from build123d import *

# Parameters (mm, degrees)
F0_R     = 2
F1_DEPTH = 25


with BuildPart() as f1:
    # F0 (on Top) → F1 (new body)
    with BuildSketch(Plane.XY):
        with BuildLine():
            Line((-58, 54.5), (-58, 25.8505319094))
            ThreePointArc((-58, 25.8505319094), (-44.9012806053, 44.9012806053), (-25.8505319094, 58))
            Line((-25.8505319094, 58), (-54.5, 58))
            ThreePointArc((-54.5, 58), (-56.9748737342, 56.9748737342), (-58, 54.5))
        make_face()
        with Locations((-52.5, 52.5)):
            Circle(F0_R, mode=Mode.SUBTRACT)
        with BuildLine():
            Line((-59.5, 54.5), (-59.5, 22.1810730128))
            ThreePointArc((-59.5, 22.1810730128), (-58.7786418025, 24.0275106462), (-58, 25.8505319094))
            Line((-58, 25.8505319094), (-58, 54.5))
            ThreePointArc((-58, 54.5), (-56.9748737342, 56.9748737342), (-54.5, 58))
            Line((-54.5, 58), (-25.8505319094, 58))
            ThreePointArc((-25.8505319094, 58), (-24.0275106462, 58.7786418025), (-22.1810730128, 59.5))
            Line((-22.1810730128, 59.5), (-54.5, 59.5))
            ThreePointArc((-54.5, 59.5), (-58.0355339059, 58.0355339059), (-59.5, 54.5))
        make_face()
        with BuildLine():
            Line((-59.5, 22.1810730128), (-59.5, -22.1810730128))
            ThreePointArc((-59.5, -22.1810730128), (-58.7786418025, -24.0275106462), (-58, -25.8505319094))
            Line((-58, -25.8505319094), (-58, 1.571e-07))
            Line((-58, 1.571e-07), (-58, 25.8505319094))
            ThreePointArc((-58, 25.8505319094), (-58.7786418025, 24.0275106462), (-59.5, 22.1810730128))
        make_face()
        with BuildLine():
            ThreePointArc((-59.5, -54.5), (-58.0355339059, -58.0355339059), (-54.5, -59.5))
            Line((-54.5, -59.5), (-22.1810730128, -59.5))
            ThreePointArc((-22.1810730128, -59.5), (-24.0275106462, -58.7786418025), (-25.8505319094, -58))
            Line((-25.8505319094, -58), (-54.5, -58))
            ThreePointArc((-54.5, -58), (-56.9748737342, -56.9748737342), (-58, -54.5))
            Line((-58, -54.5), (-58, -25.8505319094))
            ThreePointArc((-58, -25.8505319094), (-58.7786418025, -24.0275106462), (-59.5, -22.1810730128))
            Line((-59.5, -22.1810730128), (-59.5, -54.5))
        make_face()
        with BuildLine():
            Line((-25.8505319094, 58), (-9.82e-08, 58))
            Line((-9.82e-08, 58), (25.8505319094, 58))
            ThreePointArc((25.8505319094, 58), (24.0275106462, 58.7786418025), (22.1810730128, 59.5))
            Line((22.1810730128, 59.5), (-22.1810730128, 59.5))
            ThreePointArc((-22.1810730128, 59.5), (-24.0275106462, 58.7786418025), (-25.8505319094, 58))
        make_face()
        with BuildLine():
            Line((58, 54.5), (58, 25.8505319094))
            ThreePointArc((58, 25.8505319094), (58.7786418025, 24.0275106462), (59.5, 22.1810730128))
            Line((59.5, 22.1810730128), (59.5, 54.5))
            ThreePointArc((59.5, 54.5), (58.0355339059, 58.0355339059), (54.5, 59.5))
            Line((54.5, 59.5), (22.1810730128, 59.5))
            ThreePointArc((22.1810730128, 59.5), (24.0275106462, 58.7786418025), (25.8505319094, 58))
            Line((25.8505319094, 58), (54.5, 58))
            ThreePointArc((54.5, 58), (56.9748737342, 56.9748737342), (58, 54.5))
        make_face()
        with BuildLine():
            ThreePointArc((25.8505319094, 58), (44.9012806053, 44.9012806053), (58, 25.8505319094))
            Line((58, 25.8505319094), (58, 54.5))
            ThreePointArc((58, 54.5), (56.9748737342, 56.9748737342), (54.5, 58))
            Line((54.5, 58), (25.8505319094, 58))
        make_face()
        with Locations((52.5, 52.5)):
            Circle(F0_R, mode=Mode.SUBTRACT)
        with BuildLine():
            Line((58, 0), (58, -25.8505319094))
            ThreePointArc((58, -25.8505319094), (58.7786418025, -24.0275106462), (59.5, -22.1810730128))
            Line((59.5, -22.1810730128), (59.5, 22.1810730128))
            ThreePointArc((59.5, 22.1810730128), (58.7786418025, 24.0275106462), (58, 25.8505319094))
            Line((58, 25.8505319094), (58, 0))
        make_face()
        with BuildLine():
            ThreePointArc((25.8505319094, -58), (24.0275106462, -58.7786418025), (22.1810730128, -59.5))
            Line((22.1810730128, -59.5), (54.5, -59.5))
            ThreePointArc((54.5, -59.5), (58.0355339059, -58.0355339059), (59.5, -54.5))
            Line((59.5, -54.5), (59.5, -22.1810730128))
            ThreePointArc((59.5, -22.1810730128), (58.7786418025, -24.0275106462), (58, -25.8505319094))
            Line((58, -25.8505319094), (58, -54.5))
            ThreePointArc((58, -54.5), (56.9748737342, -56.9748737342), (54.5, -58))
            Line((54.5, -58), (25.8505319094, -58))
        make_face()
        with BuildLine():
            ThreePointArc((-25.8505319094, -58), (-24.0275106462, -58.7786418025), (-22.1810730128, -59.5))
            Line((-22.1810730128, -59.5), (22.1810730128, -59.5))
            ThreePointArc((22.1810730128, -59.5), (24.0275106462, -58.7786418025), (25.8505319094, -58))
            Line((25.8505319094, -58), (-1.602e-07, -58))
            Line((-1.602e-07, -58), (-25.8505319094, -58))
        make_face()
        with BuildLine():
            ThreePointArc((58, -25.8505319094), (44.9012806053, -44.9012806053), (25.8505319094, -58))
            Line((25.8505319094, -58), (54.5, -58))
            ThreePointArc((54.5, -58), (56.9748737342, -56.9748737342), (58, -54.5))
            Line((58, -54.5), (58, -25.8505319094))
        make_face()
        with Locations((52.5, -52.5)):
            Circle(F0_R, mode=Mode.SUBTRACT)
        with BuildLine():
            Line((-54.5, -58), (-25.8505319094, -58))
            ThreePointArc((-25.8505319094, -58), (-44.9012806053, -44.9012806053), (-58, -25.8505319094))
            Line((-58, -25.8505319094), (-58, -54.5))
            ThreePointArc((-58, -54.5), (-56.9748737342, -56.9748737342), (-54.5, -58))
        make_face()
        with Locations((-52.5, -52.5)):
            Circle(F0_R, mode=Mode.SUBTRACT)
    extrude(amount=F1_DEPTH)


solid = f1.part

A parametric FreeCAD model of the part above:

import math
import FreeCAD as App
import Part
import Sketcher

doc = App.newDocument("Part")
params = doc.addObject("Spreadsheet::Sheet", "Params")
for row, (alias, value) in enumerate([
    ("sketch1_diameter", "4 mm"),
    ("sketch1_radius", "5 mm"),
    ("sketch1_radius2", "63.5 mm"),
    ("sketch1_width", "109 mm"),
    ("pad1_length", "25 mm"),
], start=1):
    params.set(f"A{row}", alias)
    params.set(f"B{row}", "=" + value)
    params.setAlias(f"B{row}", alias)

body = doc.addObject("PartDesign::Body", "Body")

sketch1 = body.newObject("Sketcher::SketchObject", "Sketch")
sketch1.AttachmentSupport = (doc.getObject("XY_Plane"), [""])
sketch1.MapMode = "FlatFace"
sketch1.addGeometry(Part.ArcOfCircle(Part.Circle(App.Vector(54.5, -54.5, 0), App.Vector(0, 0, 1), 5), math.radians(-90), math.radians(0)), False)
sketch1.addGeometry(Part.LineSegment(App.Vector(59.5, -54.5, 0), App.Vector(59.5, 54.5, 0)), False)
sketch1.addGeometry(Part.ArcOfCircle(Part.Circle(App.Vector(54.5, 54.5, 0), App.Vector(0, 0, 1), 5), math.radians(0), math.radians(90)), False)
sketch1.addGeometry(Part.LineSegment(App.Vector(54.5, 59.5, 0), App.Vector(-54.5, 59.5, 0)), False)
sketch1.addGeometry(Part.ArcOfCircle(Part.Circle(App.Vector(-54.5, 54.5, 0), App.Vector(0, 0, 1), 5), math.radians(90), math.radians(180)), False)
sketch1.addGeometry(Part.LineSegment(App.Vector(-59.5, 54.5, 0), App.Vector(-59.5, -54.5, 0)), False)
sketch1.addGeometry(Part.ArcOfCircle(Part.Circle(App.Vector(-54.5, -54.5, 0), App.Vector(0, 0, 1), 5), math.radians(180), math.radians(270)), False)
sketch1.addGeometry(Part.LineSegment(App.Vector(-54.5, -59.5, 0), App.Vector(54.5, -59.5, 0)), False)
sketch1.addGeometry(Part.Circle(App.Vector(-52.5, -52.5, 0), App.Vector(0, 0, 1), 2), False)
sketch1.addGeometry(Part.ArcOfCircle(Part.Circle(App.Vector(0, 0, 0), App.Vector(0, 0, 1), 63.5), math.radians(114), math.radians(156)), False)
sketch1.addGeometry(Part.LineSegment(App.Vector(-25.9, 58, 0), App.Vector(25.9, 58, 0)), False)
sketch1.addGeometry(Part.ArcOfCircle(Part.Circle(App.Vector(0, 0, 0), App.Vector(0, 0, 1), 63.5), math.radians(24), math.radians(66)), False)
sketch1.addGeometry(Part.LineSegment(App.Vector(58, 25.9, 0), App.Vector(58, -25.9, 0)), False)
sketch1.addGeometry(Part.ArcOfCircle(Part.Circle(App.Vector(0, 0, 0), App.Vector(0, 0, 1), 63.5), math.radians(-66), math.radians(-24)), False)
sketch1.addGeometry(Part.LineSegment(App.Vector(25.9, -58, 0), App.Vector(-25.9, -58, 0)), False)
sketch1.addGeometry(Part.ArcOfCircle(Part.Circle(App.Vector(0, 0, 0), App.Vector(0, 0, 1), 63.5), math.radians(-156), math.radians(-114)), False)
sketch1.addGeometry(Part.LineSegment(App.Vector(-58, -25.9, 0), App.Vector(-58, 25.9, 0)), False)
sketch1.addGeometry(Part.Circle(App.Vector(52.5, -52.5, 0), App.Vector(0, 0, 1), 2), False)
sketch1.addGeometry(Part.Circle(App.Vector(-52.5, 52.5, 0), App.Vector(0, 0, 1), 2), False)
sketch1.addGeometry(Part.Circle(App.Vector(52.5, 52.5, 0), App.Vector(0, 0, 1), 2), False)
sketch1.addConstraint(Sketcher.Constraint("Tangent", 0, 2, 1, 1))
sketch1.addConstraint(Sketcher.Constraint("Tangent", 1, 2, 2, 1))
sketch1.addConstraint(Sketcher.Constraint("Tangent", 2, 2, 3, 1))
sketch1.addConstraint(Sketcher.Constraint("Tangent", 3, 2, 4, 1))
sketch1.addConstraint(Sketcher.Constraint("Tangent", 4, 2, 5, 1))
sketch1.addConstraint(Sketcher.Constraint("Tangent", 5, 2, 6, 1))
sketch1.addConstraint(Sketcher.Constraint("Tangent", 6, 2, 7, 1))
sketch1.addConstraint(Sketcher.Constraint("Tangent", 7, 2, 0, 1))
sketch1.addConstraint(Sketcher.Constraint("Coincident", 9, 1, 10, 1))
sketch1.addConstraint(Sketcher.Constraint("Coincident", 10, 2, 11, 2))
sketch1.addConstraint(Sketcher.Constraint("Coincident", 11, 1, 12, 1))
sketch1.addConstraint(Sketcher.Constraint("Coincident", 12, 2, 13, 2))
sketch1.addConstraint(Sketcher.Constraint("Coincident", 13, 1, 14, 1))
sketch1.addConstraint(Sketcher.Constraint("Coincident", 14, 2, 15, 2))
sketch1.addConstraint(Sketcher.Constraint("Coincident", 15, 1, 16, 1))
sketch1.addConstraint(Sketcher.Constraint("Coincident", 16, 2, 9, 2))
sketch1.addConstraint(Sketcher.Constraint("Vertical", 1))
sketch1.addConstraint(Sketcher.Constraint("Horizontal", 3))
sketch1.addConstraint(Sketcher.Constraint("Vertical", 5))
sketch1.addConstraint(Sketcher.Constraint("Horizontal", 7))
sketch1.addConstraint(Sketcher.Constraint("Horizontal", 10))
sketch1.addConstraint(Sketcher.Constraint("Vertical", 12))
sketch1.addConstraint(Sketcher.Constraint("Horizontal", 14))
sketch1.addConstraint(Sketcher.Constraint("Vertical", 16))
sketch1.addConstraint(Sketcher.Constraint("Coincident", 9, 3, -1, 1))
sketch1.addConstraint(Sketcher.Constraint("Coincident", 11, 3, -1, 1))
sketch1.addConstraint(Sketcher.Constraint("Coincident", 13, 3, -1, 1))
sketch1.addConstraint(Sketcher.Constraint("Coincident", 15, 3, -1, 1))
sketch1.addConstraint(Sketcher.Constraint("Equal", 0, 2))
sketch1.addConstraint(Sketcher.Constraint("Equal", 2, 4))
sketch1.addConstraint(Sketcher.Constraint("Equal", 4, 6))
sketch1.addConstraint(Sketcher.Constraint("Equal", 9, 11))
sketch1.addConstraint(Sketcher.Constraint("Equal", 11, 13))
sketch1.addConstraint(Sketcher.Constraint("Equal", 13, 15))
sketch1.addConstraint(Sketcher.Constraint("Equal", 8, 17))
sketch1.addConstraint(Sketcher.Constraint("Equal", 17, 18))
sketch1.addConstraint(Sketcher.Constraint("Equal", 18, 19))
sketch1.addConstraint(Sketcher.Constraint("Symmetric", 0, 3, 4, 3, -1, 1))
sketch1.addConstraint(Sketcher.Constraint("Symmetric", 17, 3, 18, 3, -1, 1))
sketch1.addConstraint(Sketcher.Constraint("Symmetric", 8, 3, 19, 3, -1, 1))
sketch1.addConstraint(Sketcher.Constraint("Symmetric", 8, 3, 17, 3, -2))
sketch1.addConstraint(Sketcher.Constraint("Horizontal", 12, 2, 15, 1))
sketch1.addConstraint(Sketcher.Constraint("Vertical", 10, 2, 13, 1))
sketch1.addConstraint(Sketcher.Constraint("Equal", 7, 1))
sketch1.addConstraint(Sketcher.Constraint("Equal", 14, 12))
sketch1.addConstraint(Sketcher.Constraint("Diameter", 8, 4.0))
sketch1.addConstraint(Sketcher.Constraint("Radius", 0, 5.0))
sketch1.addConstraint(Sketcher.Constraint("Radius", 9, 63.5))
sketch1.addConstraint(Sketcher.Constraint("DistanceX", 3, 2, 3, 1, 109.0))
sketch1.addConstraint(Sketcher.Constraint("DistanceY", -1, 1, 9, 1, 58.0))
sketch1.addConstraint(Sketcher.Constraint("DistanceX", 6, 3, 8, 3, 2.0))
sketch1.addConstraint(Sketcher.Constraint("DistanceY", 6, 3, 8, 3, 2.0))
sketch1.setExpression("Constraints[45]", "Params.sketch1_diameter")
sketch1.setExpression("Constraints[46]", "Params.sketch1_radius")
sketch1.setExpression("Constraints[47]", "Params.sketch1_radius2")
sketch1.setExpression("Constraints[48]", "Params.sketch1_width")
pad1 = body.newObject("PartDesign::Pad", "Pad")
pad1.Profile = sketch1
pad1.setExpression("Length", "Params.pad1_length")

doc.recompute()
